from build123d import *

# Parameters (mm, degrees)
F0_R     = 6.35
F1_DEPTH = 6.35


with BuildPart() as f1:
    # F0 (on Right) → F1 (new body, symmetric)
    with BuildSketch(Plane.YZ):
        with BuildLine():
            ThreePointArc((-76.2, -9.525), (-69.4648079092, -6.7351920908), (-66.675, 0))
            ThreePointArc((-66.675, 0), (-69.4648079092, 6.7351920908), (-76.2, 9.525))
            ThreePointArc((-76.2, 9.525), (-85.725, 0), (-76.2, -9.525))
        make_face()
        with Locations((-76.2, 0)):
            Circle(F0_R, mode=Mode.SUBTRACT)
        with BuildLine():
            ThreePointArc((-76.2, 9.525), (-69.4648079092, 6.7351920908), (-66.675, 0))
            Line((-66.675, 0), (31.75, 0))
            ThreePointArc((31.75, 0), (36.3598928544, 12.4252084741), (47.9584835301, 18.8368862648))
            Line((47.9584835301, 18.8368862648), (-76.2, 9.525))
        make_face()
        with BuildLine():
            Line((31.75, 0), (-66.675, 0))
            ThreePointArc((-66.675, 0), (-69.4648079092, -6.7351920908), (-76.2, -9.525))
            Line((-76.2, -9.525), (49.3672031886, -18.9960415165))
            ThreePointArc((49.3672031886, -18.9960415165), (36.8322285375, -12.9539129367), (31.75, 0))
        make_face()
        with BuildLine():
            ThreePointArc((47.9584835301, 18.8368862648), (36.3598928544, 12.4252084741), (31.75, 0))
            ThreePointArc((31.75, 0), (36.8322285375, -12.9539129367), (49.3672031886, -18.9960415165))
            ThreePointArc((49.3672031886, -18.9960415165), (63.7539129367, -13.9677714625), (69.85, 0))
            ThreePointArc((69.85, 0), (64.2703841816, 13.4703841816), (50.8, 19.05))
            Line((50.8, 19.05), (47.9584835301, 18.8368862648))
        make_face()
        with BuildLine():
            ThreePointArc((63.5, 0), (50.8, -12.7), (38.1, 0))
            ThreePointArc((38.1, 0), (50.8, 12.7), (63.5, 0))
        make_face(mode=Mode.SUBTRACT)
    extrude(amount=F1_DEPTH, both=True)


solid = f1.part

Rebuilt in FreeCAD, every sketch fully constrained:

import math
import FreeCAD as App
import Part
import Sketcher
from FreeCAD import Vector
Q = App.Units.Quantity

doc = App.newDocument("Part")
body = doc.addObject("PartDesign::Body", "Body")

sketch1 = doc.addObject("Sketcher::SketchObject", "Sketch")
body.addObject(sketch1)
sketch1.AttachmentSupport = (doc.YZ_Plane, [""])
sketch1.MapMode = "FlatFace"
sketch1.addGeometry([
    Part.ArcOfCircle(Part.Circle(Vector(-76.2, 0, 0), Vector(0, 0, 1), 9.5), math.radians(90), math.radians(270)),
    Part.LineSegment(Vector(-76.2, -9.5, 0), Vector(49.4, -19, 0)),
    Part.ArcOfCircle(Part.Circle(Vector(50.8, 0, 0), Vector(0, 0, 1), 19.1), math.radians(-94), math.radians(90)),
    Part.LineSegment(Vector(50.8, 19.1, 0), Vector(48, 18.8, 0)),
    Part.LineSegment(Vector(48, 18.8, 0), Vector(-76.2, 9.5, 0)),
    Part.Circle(Vector(-76.2, 0, 0), Vector(0, 0, 1), 6.3),
    Part.Circle(Vector(50.8, 0, 0), Vector(0, 0, 1), 12.7),
], False)
sketch1.addConstraint([
    Sketcher.Constraint("Coincident", 0, 2, 1, 1),
    Sketcher.Constraint("Tangent", 1, 2, 2, 1),
    Sketcher.Constraint("Coincident", 2, 2, 3, 1),
    Sketcher.Constraint("Coincident", 3, 2, 4, 1),
    Sketcher.Constraint("Coincident", 4, 2, 0, 1),
    Sketcher.Constraint("Coincident", 5, 3, 0, 3),
    Sketcher.Constraint("Coincident", 6, 3, 2, 3),
    Sketcher.Constraint("Symmetric", 0, 2, 4, 2, -1),
    Sketcher.Constraint("PointOnObject", 2, 3, -1),
    Sketcher.Constraint("Parallel", 3, 4),
    Sketcher.Constraint("Vertical", 5, 3, 0, 2),
    Sketcher.Constraint("Vertical", 6, 3, 2, 2),
    Sketcher.Constraint("Diameter", 6, Q("1 in")),
    Sketcher.Constraint("Diameter", 5, Q("0.5 in")),
    Sketcher.Constraint("Radius", 2, Q("0.75 in")),
    Sketcher.Constraint("DistanceX", 0, 3, -1, 1, Q("3 in")),
    Sketcher.Constraint("DistanceX", -1, 1, 2, 3, Q("2 in")),
    Sketcher.Constraint("Radius", 0, Q("0.375 in")),
    Sketcher.Constraint("Distance", 4, 124.50719),
])
pad1 = doc.addObject("PartDesign::Pad", "Pad")
body.addObject(pad1)
pad1.Profile = sketch1
pad1.Length = Q("0.5 in")
pad1.Midplane = True

doc.recompute()
